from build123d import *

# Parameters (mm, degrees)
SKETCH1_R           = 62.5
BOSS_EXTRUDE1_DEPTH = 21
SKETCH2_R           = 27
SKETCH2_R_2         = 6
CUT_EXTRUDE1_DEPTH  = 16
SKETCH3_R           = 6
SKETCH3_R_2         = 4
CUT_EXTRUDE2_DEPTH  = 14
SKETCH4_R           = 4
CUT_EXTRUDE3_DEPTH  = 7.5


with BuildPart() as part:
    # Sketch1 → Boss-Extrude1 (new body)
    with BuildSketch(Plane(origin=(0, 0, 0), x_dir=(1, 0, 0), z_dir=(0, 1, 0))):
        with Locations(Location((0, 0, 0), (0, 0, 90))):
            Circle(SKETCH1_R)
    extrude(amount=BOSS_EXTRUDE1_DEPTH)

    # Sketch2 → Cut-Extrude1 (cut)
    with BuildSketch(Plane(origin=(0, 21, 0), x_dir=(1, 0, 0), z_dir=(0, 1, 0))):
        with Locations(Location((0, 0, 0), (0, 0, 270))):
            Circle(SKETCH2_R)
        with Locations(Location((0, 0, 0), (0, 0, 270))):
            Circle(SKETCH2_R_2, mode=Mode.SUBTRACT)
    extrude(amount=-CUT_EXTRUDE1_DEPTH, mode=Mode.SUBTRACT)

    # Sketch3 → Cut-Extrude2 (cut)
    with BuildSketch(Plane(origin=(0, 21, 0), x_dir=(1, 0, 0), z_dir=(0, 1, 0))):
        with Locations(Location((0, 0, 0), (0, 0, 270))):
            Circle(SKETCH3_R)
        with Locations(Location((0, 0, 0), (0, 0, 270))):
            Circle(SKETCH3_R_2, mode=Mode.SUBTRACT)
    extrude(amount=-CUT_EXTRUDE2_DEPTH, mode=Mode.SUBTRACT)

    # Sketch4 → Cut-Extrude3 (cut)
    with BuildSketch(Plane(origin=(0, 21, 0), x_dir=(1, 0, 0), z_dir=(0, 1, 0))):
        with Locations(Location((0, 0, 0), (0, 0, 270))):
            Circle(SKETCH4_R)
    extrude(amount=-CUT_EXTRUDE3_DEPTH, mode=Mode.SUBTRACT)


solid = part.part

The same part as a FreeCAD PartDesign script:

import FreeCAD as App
import Part
import Sketcher

doc = App.newDocument("Part")
params = doc.addObject("Spreadsheet::Sheet", "Params")
for row, (alias, value) in enumerate([
    ("sketch1_diameter", "125 mm"),
    ("pad1_length", "21 mm"),
    ("sketch2_diameter", "54 mm"),
    ("sketch2_diameter2", "12 mm"),
    ("pocket1_length", "16 mm"),
    ("sketch3_diameter", "12 mm"),
    ("sketch3_diameter2", "8 mm"),
    ("pocket2_length", "14 mm"),
    ("sketch4_diameter", "8 mm"),
    ("pocket3_length", "7.5 mm"),
], start=1):
    params.set(f"A{row}", alias)
    params.set(f"B{row}", "=" + value)
    params.setAlias(f"B{row}", alias)

body = doc.addObject("PartDesign::Body", "Body")

sketch1 = body.newObject("Sketcher::SketchObject", "Sketch")
sketch1.AttachmentSupport = (doc.getObject("XZ_Plane"), [""])
sketch1.MapMode = "FlatFace"
sketch1.addGeometry(Part.Circle(App.Vector(0, 0, 0), App.Vector(0, 0, 1), 62), False)
sketch1.addConstraint([
    Sketcher.Constraint("Coincident", 0, 3, -1, 1),
    Sketcher.Constraint("Diameter", 0, 125.0),
])
sketch1.setExpression("Constraints[1]", "Params.sketch1_diameter")
pad1 = body.newObject("PartDesign::Pad", "Pad")
pad1.Profile = sketch1
pad1.setExpression("Length", "Params.pad1_length")
pad1.Reversed = True

sketch2 = body.newObject("Sketcher::SketchObject", "Sketch001")
sketch2.AttachmentSupport = (doc.getObject("XZ_Plane"), [""])
sketch2.MapMode = "FlatFace"
sketch2.AttachmentOffset = App.Placement(App.Vector(0, 0, -21), App.Rotation())
sketch2.addGeometry([
    Part.Circle(App.Vector(0, 0, 0), App.Vector(0, 0, 1), 27),
    Part.Circle(App.Vector(0, 0, 0), App.Vector(0, 0, 1), 6),
], False)
sketch2.addConstraint([
    Sketcher.Constraint("Coincident", 0, 3, -1, 1),
    Sketcher.Constraint("Coincident", 1, 3, -1, 1),
    Sketcher.Constraint("Diameter", 0, 54.0),
    Sketcher.Constraint("Diameter", 1, 12.0),
])
sketch2.setExpression("Constraints[2]", "Params.sketch2_diameter")
sketch2.setExpression("Constraints[3]", "Params.sketch2_diameter2")
pocket1 = body.newObject("PartDesign::Pocket", "Pocket")
pocket1.Profile = sketch2
pocket1.setExpression("Length", "Params.pocket1_length")
pocket1.Reversed = True

sketch3 = body.newObject("Sketcher::SketchObject", "Sketch002")
sketch3.AttachmentSupport = (doc.getObject("XZ_Plane"), [""])
sketch3.MapMode = "FlatFace"
sketch3.AttachmentOffset = App.Placement(App.Vector(0, 0, -21), App.Rotation())
sketch3.addGeometry([
    Part.Circle(App.Vector(0, 0, 0), App.Vector(0, 0, 1), 6),
    Part.Circle(App.Vector(0, 0, 0), App.Vector(0, 0, 1), 4),
], False)
sketch3.addConstraint([
    Sketcher.Constraint("Coincident", 0, 3, -1, 1),
    Sketcher.Constraint("Coincident", 1, 3, -1, 1),
    Sketcher.Constraint("Diameter", 0, 12.0),
    Sketcher.Constraint("Diameter", 1, 8.0),
])
sketch3.setExpression("Constraints[2]", "Params.sketch3_diameter")
sketch3.setExpression("Constraints[3]", "Params.sketch3_diameter2")
pocket2 = body.newObject("PartDesign::Pocket", "Pocket001")
pocket2.Profile = sketch3
pocket2.setExpression("Length", "Params.pocket2_length")
pocket2.Reversed = True

sketch4 = body.newObject("Sketcher::SketchObject", "Sketch003")
sketch4.AttachmentSupport = (doc.getObject("XZ_Plane"), [""])
sketch4.MapMode = "FlatFace"
sketch4.AttachmentOffset = App.Placement(App.Vector(0, 0, -21), App.Rotation())
sketch4.addGeometry(Part.Circle(App.Vector(0, 0, 0), App.Vector(0, 0, 1), 4), False)
sketch4.addConstraint([
    Sketcher.Constraint("Coincident", 0, 3, -1, 1),
    Sketcher.Constraint("Diameter", 0, 8.0),
])
sketch4.setExpression("Constraints[1]", "Params.sketch4_diameter")
pocket3 = body.newObject("PartDesign::Pocket", "Pocket002")
pocket3.Profile = sketch4
pocket3.setExpression("Length", "Params.pocket3_length")
pocket3.Reversed = True

doc.recompute()
